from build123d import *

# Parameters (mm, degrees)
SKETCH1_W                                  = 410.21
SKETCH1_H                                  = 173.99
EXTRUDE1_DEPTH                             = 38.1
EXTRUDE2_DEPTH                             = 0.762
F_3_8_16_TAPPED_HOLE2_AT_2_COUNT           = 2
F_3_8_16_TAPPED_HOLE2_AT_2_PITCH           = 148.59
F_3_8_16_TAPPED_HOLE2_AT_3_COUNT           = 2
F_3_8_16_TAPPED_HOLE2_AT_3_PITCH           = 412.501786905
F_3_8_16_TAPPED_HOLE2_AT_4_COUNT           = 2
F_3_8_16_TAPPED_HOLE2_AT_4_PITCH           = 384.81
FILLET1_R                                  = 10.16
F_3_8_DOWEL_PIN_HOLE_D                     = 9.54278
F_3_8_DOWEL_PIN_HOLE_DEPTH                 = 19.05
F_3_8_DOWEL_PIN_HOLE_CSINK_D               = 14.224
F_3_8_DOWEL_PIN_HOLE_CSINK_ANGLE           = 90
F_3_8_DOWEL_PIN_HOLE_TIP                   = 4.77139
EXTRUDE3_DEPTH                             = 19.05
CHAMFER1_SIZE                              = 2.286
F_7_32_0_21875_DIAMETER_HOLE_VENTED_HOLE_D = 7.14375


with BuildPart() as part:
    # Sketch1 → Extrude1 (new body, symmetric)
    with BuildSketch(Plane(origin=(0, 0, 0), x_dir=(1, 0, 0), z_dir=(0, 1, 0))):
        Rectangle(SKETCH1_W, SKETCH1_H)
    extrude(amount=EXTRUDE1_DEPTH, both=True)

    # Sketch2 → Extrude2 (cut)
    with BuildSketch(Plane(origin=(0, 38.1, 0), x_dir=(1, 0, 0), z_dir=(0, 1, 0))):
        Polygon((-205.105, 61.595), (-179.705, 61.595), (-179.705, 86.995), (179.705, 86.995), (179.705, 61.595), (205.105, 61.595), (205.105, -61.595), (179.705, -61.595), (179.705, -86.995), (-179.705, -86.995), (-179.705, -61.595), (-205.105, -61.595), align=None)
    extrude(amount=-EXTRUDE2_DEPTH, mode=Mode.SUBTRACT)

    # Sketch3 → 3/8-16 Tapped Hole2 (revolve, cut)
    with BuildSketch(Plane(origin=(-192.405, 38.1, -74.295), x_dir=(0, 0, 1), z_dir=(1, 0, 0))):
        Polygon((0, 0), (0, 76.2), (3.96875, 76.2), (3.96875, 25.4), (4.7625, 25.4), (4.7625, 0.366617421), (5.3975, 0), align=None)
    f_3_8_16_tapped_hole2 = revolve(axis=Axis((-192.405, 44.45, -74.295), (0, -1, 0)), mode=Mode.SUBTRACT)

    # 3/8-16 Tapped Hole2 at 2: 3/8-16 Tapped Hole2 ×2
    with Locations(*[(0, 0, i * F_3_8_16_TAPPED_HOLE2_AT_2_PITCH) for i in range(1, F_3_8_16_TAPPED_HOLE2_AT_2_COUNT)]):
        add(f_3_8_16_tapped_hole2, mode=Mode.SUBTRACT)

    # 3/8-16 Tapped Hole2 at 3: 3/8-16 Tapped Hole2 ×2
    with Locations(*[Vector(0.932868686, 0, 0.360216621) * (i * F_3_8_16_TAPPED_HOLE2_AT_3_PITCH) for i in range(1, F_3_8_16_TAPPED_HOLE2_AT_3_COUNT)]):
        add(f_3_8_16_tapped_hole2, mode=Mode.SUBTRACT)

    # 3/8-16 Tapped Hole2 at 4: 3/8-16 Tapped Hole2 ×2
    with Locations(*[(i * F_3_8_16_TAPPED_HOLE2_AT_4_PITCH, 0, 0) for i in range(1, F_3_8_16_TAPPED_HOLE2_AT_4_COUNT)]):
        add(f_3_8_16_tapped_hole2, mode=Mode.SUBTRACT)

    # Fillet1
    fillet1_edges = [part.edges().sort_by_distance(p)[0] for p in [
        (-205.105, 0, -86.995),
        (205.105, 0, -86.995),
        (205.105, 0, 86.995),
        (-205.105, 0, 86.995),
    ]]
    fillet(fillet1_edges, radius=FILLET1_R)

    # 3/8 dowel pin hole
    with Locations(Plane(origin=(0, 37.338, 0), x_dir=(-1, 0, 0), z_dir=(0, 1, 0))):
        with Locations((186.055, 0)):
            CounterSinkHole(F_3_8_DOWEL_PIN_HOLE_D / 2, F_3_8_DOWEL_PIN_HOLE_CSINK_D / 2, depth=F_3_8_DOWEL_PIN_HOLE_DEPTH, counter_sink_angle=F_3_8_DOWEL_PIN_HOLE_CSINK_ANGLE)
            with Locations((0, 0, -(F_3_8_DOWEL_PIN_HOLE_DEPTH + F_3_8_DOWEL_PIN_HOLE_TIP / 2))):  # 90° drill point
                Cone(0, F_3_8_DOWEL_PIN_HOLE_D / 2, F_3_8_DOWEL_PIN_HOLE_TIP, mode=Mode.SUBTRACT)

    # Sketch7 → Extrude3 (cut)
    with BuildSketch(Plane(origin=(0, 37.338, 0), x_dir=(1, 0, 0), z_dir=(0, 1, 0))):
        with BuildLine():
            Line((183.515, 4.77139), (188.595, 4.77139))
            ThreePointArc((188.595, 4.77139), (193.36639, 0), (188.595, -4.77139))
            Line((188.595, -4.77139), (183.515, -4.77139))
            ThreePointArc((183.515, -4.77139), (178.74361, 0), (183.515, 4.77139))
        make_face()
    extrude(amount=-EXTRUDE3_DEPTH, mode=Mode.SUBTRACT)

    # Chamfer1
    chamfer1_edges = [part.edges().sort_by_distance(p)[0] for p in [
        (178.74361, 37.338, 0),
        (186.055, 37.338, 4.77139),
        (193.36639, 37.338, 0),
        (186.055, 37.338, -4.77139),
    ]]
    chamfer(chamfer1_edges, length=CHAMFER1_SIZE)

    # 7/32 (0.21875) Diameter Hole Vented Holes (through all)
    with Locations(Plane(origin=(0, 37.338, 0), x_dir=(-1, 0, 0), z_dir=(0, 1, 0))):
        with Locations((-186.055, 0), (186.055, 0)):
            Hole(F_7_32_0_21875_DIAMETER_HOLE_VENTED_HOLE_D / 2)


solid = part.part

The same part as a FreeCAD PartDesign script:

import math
import FreeCAD as App
import Part
import Sketcher
from FreeCAD import Vector
Q = App.Units.Quantity


def edges_at(feature, points):
    """Names of the edges that pass closest to the given points."""
    edges = feature.Shape.Edges
    near = lambda p: min(range(len(edges)), key=lambda i: edges[i].distToShape(Part.Vertex(*p))[0])
    return sorted({f"Edge{near(p) + 1}" for p in points})

doc = App.newDocument("Part")
body = doc.addObject("PartDesign::Body", "Body")

# Sketch on XZ plane
sketch1 = doc.addObject("Sketcher::SketchObject", "Sketch")
body.addObject(sketch1)
sketch1.AttachmentSupport = (doc.XZ_Plane, [""])
sketch1.MapMode = "FlatFace"
sketch1.addGeometry([
    Part.LineSegment(Vector(-205.105, -86.995, 0), Vector(-205.105, 86.995, 0)),
    Part.LineSegment(Vector(-205.105, 86.995, 0), Vector(205.105, 86.995, 0)),
    Part.LineSegment(Vector(205.105, 86.995, 0), Vector(205.105, -86.995, 0)),
    Part.LineSegment(Vector(205.105, -86.995, 0), Vector(-205.105, -86.995, 0)),
], False)
sketch1.addConstraint([
    Sketcher.Constraint("Coincident", 0, 2, 1, 1),
    Sketcher.Constraint("Coincident", 1, 2, 2, 1),
    Sketcher.Constraint("Coincident", 2, 2, 3, 1),
    Sketcher.Constraint("Coincident", 3, 2, 0, 1),
    Sketcher.Constraint("Vertical", 0),
    Sketcher.Constraint("Horizontal", 1),
    Sketcher.Constraint("Vertical", 2),
    Sketcher.Constraint("Horizontal", 3),
    Sketcher.Constraint("Symmetric", 0, 2, 2, 2, -1, 1),
    Sketcher.Constraint("DistanceX", 1, 1, 1, 2, Q("16.15 in")),
    Sketcher.Constraint("DistanceY", 0, 1, 0, 2, Q("6.85 in")),
])
pad1 = doc.addObject("PartDesign::Pad", "Pad")
body.addObject(pad1)
pad1.Profile = sketch1
pad1.Length = Q("3 in")
pad1.Midplane = True

# Sketch on XZ plane
sketch2 = doc.addObject("Sketcher::SketchObject", "Sketch001")
body.addObject(sketch2)
sketch2.AttachmentSupport = (doc.XZ_Plane, [""])
sketch2.MapMode = "FlatFace"
sketch2.AttachmentOffset = App.Placement(Vector(0, 0, -1.5 * 25.4), App.Rotation())
sketch2.addGeometry([
    Part.LineSegment(Vector(-179.705, -61.595, 0), Vector(-205.105, -61.595, 0)),  # 0
    Part.LineSegment(Vector(-205.105, -61.595, 0), Vector(-205.105, 61.595, 0)),  # 1
    Part.LineSegment(Vector(-205.105, 61.595, 0), Vector(-179.705, 61.595, 0)),  # 2
    Part.LineSegment(Vector(-179.705, 61.595, 0), Vector(-179.705, 86.995, 0)),  # 3
    Part.LineSegment(Vector(-179.705, 86.995, 0), Vector(179.705, 86.995, 0)),  # 4
    Part.LineSegment(Vector(179.705, 86.995, 0), Vector(179.705, 61.595, 0)),  # 5
    Part.LineSegment(Vector(179.705, 61.595, 0), Vector(205.105, 61.595, 0)),  # 6
    Part.LineSegment(Vector(205.105, 61.595, 0), Vector(205.105, -61.595, 0)),  # 7
    Part.LineSegment(Vector(205.105, -61.595, 0), Vector(179.705, -61.595, 0)),  # 8
    Part.LineSegment(Vector(179.705, -61.595, 0), Vector(179.705, -86.995, 0)),  # 9
    Part.LineSegment(Vector(179.705, -86.995, 0), Vector(-179.705, -86.995, 0)),  # 10
    Part.LineSegment(Vector(-179.705, -86.995, 0), Vector(-179.705, -61.595, 0)),  # 11
], False)
sketch2.addConstraint([
    Sketcher.Constraint("Coincident", 0, 2, 1, 1),
    Sketcher.Constraint("Coincident", 1, 2, 2, 1),
    Sketcher.Constraint("Coincident", 2, 2, 3, 1),
    Sketcher.Constraint("Coincident", 3, 2, 4, 1),
    Sketcher.Constraint("Coincident", 4, 2, 5, 1),
    Sketcher.Constraint("Coincident", 5, 2, 6, 1),
    Sketcher.Constraint("Coincident", 6, 2, 7, 1),
    Sketcher.Constraint("Coincident", 7, 2, 8, 1),
    Sketcher.Constraint("Coincident", 8, 2, 9, 1),
    Sketcher.Constraint("Coincident", 9, 2, 10, 1),
    Sketcher.Constraint("Coincident", 10, 2, 11, 1),
    Sketcher.Constraint("Coincident", 11, 2, 0, 1),
    Sketcher.Constraint("Horizontal", 0),
    Sketcher.Constraint("Vertical", 1),
    Sketcher.Constraint("Horizontal", 2),
    Sketcher.Constraint("Vertical", 3),
    Sketcher.Constraint("Horizontal", 4),
    Sketcher.Constraint("Vertical", 5),
    Sketcher.Constraint("Horizontal", 6),
    Sketcher.Constraint("Vertical", 7),
    Sketcher.Constraint("Horizontal", 8),
    Sketcher.Constraint("Vertical", 9),
    Sketcher.Constraint("Horizontal", 10),
    Sketcher.Constraint("Vertical", 11),
    Sketcher.Constraint("Symmetric", 0, 2, 6, 2, -1, 1),
    Sketcher.Constraint("Symmetric", 2, 2, 8, 2, -1, 1),
    Sketcher.Constraint("Symmetric", 4, 2, 10, 2, -1, 1),
    Sketcher.Constraint("Symmetric", 2, 2, 5, 2, -2),
    Sketcher.Constraint("Equal", 8, 3),
    Sketcher.Constraint("DistanceX", 0, 2, 0, 1, Q("1 in")),
    Sketcher.Constraint("DistanceX", 4, 1, 4, 2, Q("14.15 in")),
    Sketcher.Constraint("DistanceY", 1, 1, 1, 2, Q("4.85 in")),
])
pocket1 = doc.addObject("PartDesign::Pocket", "Pocket")
body.addObject(pocket1)
pocket1.Profile = sketch2
pocket1.Length = Q("0.03 in")
pocket1.Reversed = True

# Sketch on YZ plane
sketch3 = doc.addObject("Sketcher::SketchObject", "Sketch002")
body.addObject(sketch3)
sketch3.AttachmentSupport = (doc.YZ_Plane, [""])
sketch3.MapMode = "FlatFace"
sketch3.AttachmentOffset = App.Placement(Vector(0, 0, -7.575 * 25.4), App.Rotation())
sketch3.addGeometry([
    Part.LineSegment(Vector(-38.1, -74.295, 0), Vector(38.1, -74.295, 0)),  # 0
    Part.LineSegment(Vector(38.1, -74.295, 0), Vector(38.1, -68.8975, 0)),  # 1
    Part.LineSegment(Vector(38.1, -68.8975, 0), Vector(37.733383, -69.5325, 0)),  # 2
    Part.LineSegment(Vector(37.733383, -69.5325, 0), Vector(12.7, -69.5325, 0)),  # 3
    Part.LineSegment(Vector(12.7, -69.5325, 0), Vector(12.7, -70.32625, 0)),  # 4
    Part.LineSegment(Vector(12.7, -70.32625, 0), Vector(-38.1, -70.32625, 0)),  # 5
    Part.LineSegment(Vector(-38.1, -70.32625, 0), Vector(-38.1, -74.295, 0)),  # 6
], False)
sketch3.addGeometry(Part.LineSegment(Vector(38.1, -74.295, 0), Vector(-38.1, -74.295, 0)), True)  # axis
sketch3.addConstraint([
    Sketcher.Constraint("Coincident", 0, 2, 1, 1),
    Sketcher.Constraint("Coincident", 1, 2, 2, 1),
    Sketcher.Constraint("Coincident", 2, 2, 3, 1),
    Sketcher.Constraint("Coincident", 3, 2, 4, 1),
    Sketcher.Constraint("Coincident", 4, 2, 5, 1),
    Sketcher.Constraint("Coincident", 5, 2, 6, 1),
    Sketcher.Constraint("Coincident", 6, 2, 0, 1),
    Sketcher.Constraint("Horizontal", 0),
    Sketcher.Constraint("Vertical", 1),
    Sketcher.Constraint("Horizontal", 3),
    Sketcher.Constraint("Vertical", 4),
    Sketcher.Constraint("Horizontal", 5),
    Sketcher.Constraint("Vertical", 6),
    Sketcher.Constraint("Horizontal", 7),
    Sketcher.Constraint("Coincident", 7, 1, 0, 2),
    Sketcher.Constraint("Vertical", 5, 2, 7, 2),
    Sketcher.Constraint("DistanceX", 0, 1, 0, 2, Q("3 in")),
    Sketcher.Constraint("DistanceX", 5, 2, 5, 1, Q("2 in")),
    Sketcher.Constraint("Angle", 2, Q("-120 deg")),
    Sketcher.Constraint("DistanceX", -1, 1, 0, 2, Q("1.5 in")),
    Sketcher.Constraint("DistanceY", 4, 2, 4, 1, Q("0.03125 in")),
    Sketcher.Constraint("DistanceY", 6, 2, 6, 1, Q("0.15625 in")),
    Sketcher.Constraint("DistanceY", 1, 1, 1, 2, Q("0.2125 in")),
    Sketcher.Constraint("DistanceY", 0, 2, -1, 1, Q("2.925 in")),
])
groove = doc.addObject("PartDesign::Groove", "Groove")
body.addObject(groove)
groove.Profile = sketch3
groove.ReferenceAxis = (sketch3, ["Axis0"])
groove.Angle = 360
doc.recompute()

linearpattern = doc.addObject("PartDesign::LinearPattern", "LinearPattern")
body.addObject(linearpattern)
linearpattern.Originals = [groove]
linearpattern.Direction = (doc.Z_Axis, [""])
linearpattern.Mode = "offset"
linearpattern.Offset = Q("5.85 in")
linearpattern.Occurrences = 2
body.Tip = linearpattern
doc.recompute()

datumline = doc.addObject("PartDesign::Line", "DatumLine")
body.addObject(datumline)
datumline.Placement = App.Placement(Vector(0, 0, 0), App.Rotation(Vector(0, 0, 1), Vector(0.932868686, 0, 0.360216621)))
linearpattern2 = doc.addObject("PartDesign::LinearPattern", "LinearPattern001")
body.addObject(linearpattern2)
linearpattern2.Originals = [groove]
linearpattern2.Direction = (datumline, [""])
linearpattern2.Mode = "offset"
linearpattern2.Offset = 412.501787
linearpattern2.Occurrences = 2
body.Tip = linearpattern2
doc.recompute()

linearpattern3 = doc.addObject("PartDesign::LinearPattern", "LinearPattern002")
body.addObject(linearpattern3)
linearpattern3.Originals = [groove]
linearpattern3.Direction = (doc.X_Axis, [""])
linearpattern3.Mode = "offset"
linearpattern3.Offset = Q("15.15 in")
linearpattern3.Occurrences = 2
body.Tip = linearpattern3
doc.recompute()

fillet = doc.addObject("PartDesign::Fillet", "Fillet")
body.addObject(fillet)
fillet.Base = (linearpattern3, edges_at(linearpattern3, [
    (-205.105, 0, -86.995),
    (205.105, 0, -86.995),
    (205.105, 0, 86.995),
    (-205.105, 0, 86.995),
]))
fillet.Radius = Q("0.4 in")

# Sketch on XZ plane
sketch4 = doc.addObject("Sketcher::SketchObject", "Sketch003")
body.addObject(sketch4)
sketch4.AttachmentSupport = (doc.XZ_Plane, [""])
sketch4.MapMode = "FlatFace"
sketch4.AttachmentOffset = App.Placement(Vector(0, 0, -1.47 * 25.4), App.Rotation())
sketch4.addGeometry(Part.Circle(Vector(-186.055, 0, 0), Vector(0, 0, 1), 4.77139), False)
sketch4.addConstraint([
    Sketcher.Constraint("PointOnObject", 0, 3, -1),
    Sketcher.Constraint("Diameter", 0, Q("0.3757 in")),
    Sketcher.Constraint("DistanceX", 0, 3, -1, 1, Q("7.325 in")),
])
doc.recompute()
hole = doc.addObject("PartDesign::Hole", "Hole")
body.addObject(hole)
hole.Profile = sketch4
hole.ThreadType = "None"
hole.Diameter = Q("0.3757 in")
hole.DepthType = "Dimension"
hole.Depth = Q("0.75 in")
hole.DrillPoint = "Angled"
hole.DrillPointAngle = 90
hole.HoleCutType = "Countersink"
hole.HoleCutDiameter = Q("0.56 in")
hole.HoleCutCountersinkAngle = 90
hole.Reversed = True

# Sketch on XZ plane
sketch5 = doc.addObject("Sketcher::SketchObject", "Sketch004")
body.addObject(sketch5)
sketch5.AttachmentSupport = (doc.XZ_Plane, [""])
sketch5.MapMode = "FlatFace"
sketch5.AttachmentOffset = App.Placement(Vector(0, 0, -1.47 * 25.4), App.Rotation())
sketch5.addGeometry([
    Part.LineSegment(Vector(188.595, -4.77139, 0), Vector(183.515, -4.77139, 0)),
    Part.ArcOfCircle(Part.Circle(Vector(183.515, 0, 0), Vector(0, 0, 1), 4.77139), math.radians(90), math.radians(270)),
    Part.LineSegment(Vector(183.515, 4.77139, 0), Vector(188.595, 4.77139, 0)),
    Part.ArcOfCircle(Part.Circle(Vector(188.595, 0, 0), Vector(0, 0, 1), 4.77139), math.radians(-90), math.radians(90)),
], False)
sketch5.addConstraint([
    Sketcher.Constraint("Tangent", 0, 2, 1, 2),
    Sketcher.Constraint("Tangent", 1, 1, 2, 1),
    Sketcher.Constraint("Tangent", 2, 2, 3, 2),
    Sketcher.Constraint("Tangent", 3, 1, 0, 1),
    Sketcher.Constraint("Horizontal", 0),
    Sketcher.Constraint("Horizontal", 2),
    Sketcher.Constraint("PointOnObject", 1, 3, -1),
    Sketcher.Constraint("DistanceX", 0, 2, 0, 1, Q("0.2 in")),
    Sketcher.Constraint("DistanceX", -1, 1, 1, 3, Q("7.225 in")),
    Sketcher.Constraint("Radius", 1, Q("4.77139 mm")),
])
pocket2 = doc.addObject("PartDesign::Pocket", "Pocket001")
body.addObject(pocket2)
pocket2.Profile = sketch5
pocket2.Length = Q("0.75 in")
pocket2.Reversed = True
doc.recompute()

chamfer = doc.addObject("PartDesign::Chamfer", "Chamfer")
body.addObject(chamfer)
chamfer.Base = (pocket2, edges_at(pocket2, [
    (178.744, 37.338, 0),
    (186.055, 37.338, 4.771),
    (193.366, 37.338, 0),
    (186.055, 37.338, -4.771),
]))
chamfer.Size = Q("0.09 in")

# Sketch on XZ plane
sketch6 = doc.addObject("Sketcher::SketchObject", "Sketch005")
body.addObject(sketch6)
sketch6.AttachmentSupport = (doc.XZ_Plane, [""])
sketch6.MapMode = "FlatFace"
sketch6.AttachmentOffset = App.Placement(Vector(0, 0, -1.47 * 25.4), App.Rotation())
sketch6.addGeometry([
    Part.Circle(Vector(186.055, 0, 0), Vector(0, 0, 1), 3.571875),
    Part.Circle(Vector(-186.055, 0, 0), Vector(0, 0, 1), 3.571875),
], False)
sketch6.addConstraint([
    Sketcher.Constraint("Equal", 0, 1),
    Sketcher.Constraint("Symmetric", 0, 3, 1, 3, -1, 1),
    Sketcher.Constraint("PointOnObject", 0, 3, -1),
    Sketcher.Constraint("Diameter", 0, Q("0.28125 in")),
    Sketcher.Constraint("DistanceX", 1, 3, 0, 3, Q("14.65 in")),
])
doc.recompute()
hole2 = doc.addObject("PartDesign::Hole", "Hole001")
body.addObject(hole2)
hole2.Profile = sketch6
hole2.ThreadType = "None"
hole2.Diameter = Q("0.28125 in")
hole2.DepthType = "ThroughAll"
hole2.Reversed = True

doc.recompute()
